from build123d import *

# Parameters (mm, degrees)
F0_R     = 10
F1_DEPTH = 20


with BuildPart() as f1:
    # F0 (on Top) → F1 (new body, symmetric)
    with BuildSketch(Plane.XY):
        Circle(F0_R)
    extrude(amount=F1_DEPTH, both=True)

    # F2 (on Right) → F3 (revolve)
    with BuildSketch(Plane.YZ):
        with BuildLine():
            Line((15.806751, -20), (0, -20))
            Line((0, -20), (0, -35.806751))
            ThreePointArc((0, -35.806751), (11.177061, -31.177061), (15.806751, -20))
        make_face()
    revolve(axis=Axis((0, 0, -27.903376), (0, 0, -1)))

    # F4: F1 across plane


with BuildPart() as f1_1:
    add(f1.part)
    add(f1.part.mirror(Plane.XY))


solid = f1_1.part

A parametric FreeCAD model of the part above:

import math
import FreeCAD as App
import Part
import Sketcher

doc = App.newDocument("Part")
params = doc.addObject("Spreadsheet::Sheet", "Params")
for row, (alias, value) in enumerate([
    ("sketch1_diameter", "20 mm"),
    ("pad1_length", "40 mm"),
    ("revolution_angle", "360 deg"),
], start=1):
    params.set(f"A{row}", alias)
    params.set(f"B{row}", "=" + value)
    params.setAlias(f"B{row}", alias)

body = doc.addObject("PartDesign::Body", "Body")

# Sketch on XY plane
sketch1 = body.newObject("Sketcher::SketchObject", "Sketch")
sketch1.AttachmentSupport = (doc.getObject("XY_Plane"), [""])
sketch1.MapMode = "FlatFace"
sketch1.addGeometry(Part.Circle(App.Vector(0, 0, 0), App.Vector(0, 0, 1), 10), False)
sketch1.addConstraint([
    Sketcher.Constraint("Coincident", 0, 3, -1, 1),
    Sketcher.Constraint("Diameter", 0, 20.0),
])
sketch1.setExpression("Constraints[1]", "Params.sketch1_diameter")
pad1 = body.newObject("PartDesign::Pad", "Pad")
pad1.Profile = sketch1
pad1.setExpression("Length", "Params.pad1_length")
pad1.Midplane = True

# Sketch on YZ plane
sketch2 = body.newObject("Sketcher::SketchObject", "Sketch001")
sketch2.AttachmentSupport = (doc.getObject("YZ_Plane"), [""])
sketch2.MapMode = "FlatFace"
sketch2.addGeometry([
    Part.LineSegment(App.Vector(16, -20, 0), App.Vector(0, -20, 0)),
    Part.LineSegment(App.Vector(0, -20, 0), App.Vector(0, -36, 0)),
    Part.ArcOfCircle(Part.Circle(App.Vector(0, -20, 0), App.Vector(0, 0, 1), 16), math.radians(-90), math.radians(0)),
], False)
sketch2.addConstraint([
    Sketcher.Constraint("Coincident", 0, 2, 1, 1),
    Sketcher.Constraint("Coincident", 1, 2, 2, 1),
    Sketcher.Constraint("Coincident", 2, 2, 0, 1),
    Sketcher.Constraint("Horizontal", 0),
    Sketcher.Constraint("Vertical", 1),
    Sketcher.Constraint("Coincident", 0, 2, 2, 3),
    Sketcher.Constraint("PointOnObject", 2, 3, -2),
    Sketcher.Constraint("DistanceY", 2, 3, -1, 1, 20.000001),
    Sketcher.Constraint("Radius", 2, 15.80675),
])
revolution = body.newObject("PartDesign::Revolution", "Revolution")
revolution.Profile = sketch2
revolution.ReferenceAxis = (sketch2, ["V_Axis"])
revolution.setExpression("Angle", "Params.revolution_angle")
body2 = doc.addObject("PartDesign::Body", "Body001")
doc.recompute()

body2.BaseFeature = body
doc.recompute()

mirroring = doc.addObject("Part::Mirroring", "Mirroring")
mirroring.Source = body
mirroring.Base = App.Vector(0, 0, 0)
mirroring.Normal = App.Vector(0, 0, 1)
body3 = doc.addObject("PartDesign::Body", "Body002")
body3.BaseFeature = mirroring
boolean = body2.newObject("PartDesign::Boolean", "Boolean")
boolean.Type = "Fuse"
boolean.addObjects([body3])
doc.recompute()
mirroring.Visibility = False

doc.recompute()
